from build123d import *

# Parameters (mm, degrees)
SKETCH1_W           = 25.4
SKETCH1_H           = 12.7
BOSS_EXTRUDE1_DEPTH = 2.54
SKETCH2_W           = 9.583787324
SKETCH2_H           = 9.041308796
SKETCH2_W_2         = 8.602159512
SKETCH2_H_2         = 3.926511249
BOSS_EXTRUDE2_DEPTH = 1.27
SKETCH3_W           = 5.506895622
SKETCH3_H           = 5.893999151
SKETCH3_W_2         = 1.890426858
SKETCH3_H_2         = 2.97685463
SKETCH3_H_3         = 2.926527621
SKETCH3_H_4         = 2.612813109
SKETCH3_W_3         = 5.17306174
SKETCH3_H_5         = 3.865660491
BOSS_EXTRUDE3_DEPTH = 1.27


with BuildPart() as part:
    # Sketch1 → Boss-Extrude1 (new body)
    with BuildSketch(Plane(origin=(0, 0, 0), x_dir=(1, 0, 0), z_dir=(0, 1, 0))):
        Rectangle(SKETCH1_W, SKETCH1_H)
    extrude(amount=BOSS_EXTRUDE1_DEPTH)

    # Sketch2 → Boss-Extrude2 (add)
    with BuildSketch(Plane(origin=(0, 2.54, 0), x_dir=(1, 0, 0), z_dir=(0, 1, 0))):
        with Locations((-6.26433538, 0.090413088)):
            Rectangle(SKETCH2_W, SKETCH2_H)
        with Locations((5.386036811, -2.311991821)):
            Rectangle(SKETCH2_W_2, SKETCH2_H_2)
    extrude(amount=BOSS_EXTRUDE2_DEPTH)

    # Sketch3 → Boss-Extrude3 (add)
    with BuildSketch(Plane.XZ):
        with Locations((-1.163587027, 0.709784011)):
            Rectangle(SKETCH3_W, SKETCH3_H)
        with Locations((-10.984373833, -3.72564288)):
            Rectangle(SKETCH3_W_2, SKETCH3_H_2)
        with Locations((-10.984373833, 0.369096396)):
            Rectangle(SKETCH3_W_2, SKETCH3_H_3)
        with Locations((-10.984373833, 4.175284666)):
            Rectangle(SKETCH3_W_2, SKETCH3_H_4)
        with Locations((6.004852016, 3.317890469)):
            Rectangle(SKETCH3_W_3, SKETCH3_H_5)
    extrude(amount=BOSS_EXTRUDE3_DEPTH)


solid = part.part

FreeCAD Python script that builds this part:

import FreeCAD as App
import Part
import Sketcher
Q = App.Units.Quantity

doc = App.newDocument("Part")
body = doc.addObject("PartDesign::Body", "Body")

sketch1 = body.newObject("Sketcher::SketchObject", "Sketch")
sketch1.AttachmentSupport = (doc.getObject("XZ_Plane"), [""])
sketch1.MapMode = "FlatFace"
sketch1.addGeometry(Part.LineSegment(App.Vector(-13, -6, 0), App.Vector(-13, 6, 0)), False)
sketch1.addGeometry(Part.LineSegment(App.Vector(-13, 6, 0), App.Vector(13, 6, 0)), False)
sketch1.addGeometry(Part.LineSegment(App.Vector(13, 6, 0), App.Vector(13, -6, 0)), False)
sketch1.addGeometry(Part.LineSegment(App.Vector(13, -6, 0), App.Vector(-13, -6, 0)), False)
sketch1.addConstraint(Sketcher.Constraint("Coincident", 0, 2, 1, 1))
sketch1.addConstraint(Sketcher.Constraint("Coincident", 1, 2, 2, 1))
sketch1.addConstraint(Sketcher.Constraint("Coincident", 2, 2, 3, 1))
sketch1.addConstraint(Sketcher.Constraint("Coincident", 3, 2, 0, 1))
sketch1.addConstraint(Sketcher.Constraint("Vertical", 0))
sketch1.addConstraint(Sketcher.Constraint("Horizontal", 1))
sketch1.addConstraint(Sketcher.Constraint("Vertical", 2))
sketch1.addConstraint(Sketcher.Constraint("Horizontal", 3))
sketch1.addConstraint(Sketcher.Constraint("Symmetric", 0, 2, 2, 2, -1, 1))
sketch1.addConstraint(Sketcher.Constraint("DistanceX", 1, 1, 1, 2, Q("1 in")))
sketch1.addConstraint(Sketcher.Constraint("DistanceY", 0, 1, 0, 2, Q("0.5 in")))
pad1 = body.newObject("PartDesign::Pad", "Pad")
pad1.Profile = sketch1
pad1.Length = Q("0.1 in")
pad1.Reversed = True

sketch2 = body.newObject("Sketcher::SketchObject", "Sketch001")
sketch2.AttachmentSupport = (doc.getObject("XZ_Plane"), [""])
sketch2.MapMode = "FlatFace"
sketch2.AttachmentOffset = App.Placement(App.Vector(0, 0, -0.1 * 25.4), App.Rotation())
sketch2.addGeometry(Part.LineSegment(App.Vector(-11.1, -4.6, 0), App.Vector(-11.1, 4.4, 0)), False)
sketch2.addGeometry(Part.LineSegment(App.Vector(-11.1, 4.4, 0), App.Vector(-1.5, 4.4, 0)), False)
sketch2.addGeometry(Part.LineSegment(App.Vector(-1.5, 4.4, 0), App.Vector(-1.5, -4.6, 0)), False)
sketch2.addGeometry(Part.LineSegment(App.Vector(-1.5, -4.6, 0), App.Vector(-11.1, -4.6, 0)), False)
sketch2.addGeometry(Part.LineSegment(App.Vector(1.1, 0.3, 0), App.Vector(1.1, 4.3, 0)), False)
sketch2.addGeometry(Part.LineSegment(App.Vector(1.1, 4.3, 0), App.Vector(9.7, 4.3, 0)), False)
sketch2.addGeometry(Part.LineSegment(App.Vector(9.7, 4.3, 0), App.Vector(9.7, 0.3, 0)), False)
sketch2.addGeometry(Part.LineSegment(App.Vector(9.7, 0.3, 0), App.Vector(1.1, 0.3, 0)), False)
sketch2.addConstraint(Sketcher.Constraint("Coincident", 0, 2, 1, 1))
sketch2.addConstraint(Sketcher.Constraint("Coincident", 1, 2, 2, 1))
sketch2.addConstraint(Sketcher.Constraint("Coincident", 2, 2, 3, 1))
sketch2.addConstraint(Sketcher.Constraint("Coincident", 3, 2, 0, 1))
sketch2.addConstraint(Sketcher.Constraint("Coincident", 4, 2, 5, 1))
sketch2.addConstraint(Sketcher.Constraint("Coincident", 5, 2, 6, 1))
sketch2.addConstraint(Sketcher.Constraint("Coincident", 6, 2, 7, 1))
sketch2.addConstraint(Sketcher.Constraint("Coincident", 7, 2, 4, 1))
sketch2.addConstraint(Sketcher.Constraint("Vertical", 0))
sketch2.addConstraint(Sketcher.Constraint("Horizontal", 1))
sketch2.addConstraint(Sketcher.Constraint("Vertical", 2))
sketch2.addConstraint(Sketcher.Constraint("Horizontal", 3))
sketch2.addConstraint(Sketcher.Constraint("Vertical", 4))
sketch2.addConstraint(Sketcher.Constraint("Horizontal", 5))
sketch2.addConstraint(Sketcher.Constraint("Vertical", 6))
sketch2.addConstraint(Sketcher.Constraint("Horizontal", 7))
sketch2.addConstraint(Sketcher.Constraint("DistanceX", 5, 1, 5, 2, Q("8.60216 mm")))
sketch2.addConstraint(Sketcher.Constraint("DistanceY", 0, 1, 0, 2, Q("9.041309 mm")))
sketch2.addConstraint(Sketcher.Constraint("DistanceY", 4, 1, 4, 2, Q("3.926511 mm")))
sketch2.addConstraint(Sketcher.Constraint("DistanceX", 1, 2, 4, 2, Q("2.557399 mm")))
sketch2.addConstraint(Sketcher.Constraint("DistanceX", 1, 1, 1, 2, Q("9.583787 mm")))
sketch2.addConstraint(Sketcher.Constraint("DistanceX", 0, 2, -1, 1, Q("11.056229 mm")))
sketch2.addConstraint(Sketcher.Constraint("DistanceY", -1, 1, 0, 2, Q("4.430241 mm")))
sketch2.addConstraint(Sketcher.Constraint("DistanceY", -1, 1, 4, 2, Q("4.275247 mm")))
pad2 = body.newObject("PartDesign::Pad", "Pad001")
pad2.Profile = sketch2
pad2.Length = Q("0.05 in")
pad2.Reversed = True

sketch3 = body.newObject("Sketcher::SketchObject", "Sketch002")
sketch3.AttachmentSupport = (doc.getObject("XZ_Plane"), [""])
sketch3.MapMode = "FlatFace"
sketch3.addGeometry(Part.LineSegment(App.Vector(-3.9, 3.7, 0), App.Vector(-3.9, -2.2, 0)), False)
sketch3.addGeometry(Part.LineSegment(App.Vector(-3.9, -2.2, 0), App.Vector(1.6, -2.2, 0)), False)
sketch3.addGeometry(Part.LineSegment(App.Vector(1.6, -2.2, 0), App.Vector(1.6, 3.7, 0)), False)
sketch3.addGeometry(Part.LineSegment(App.Vector(1.6, 3.7, 0), App.Vector(-3.9, 3.7, 0)), False)
sketch3.addGeometry(Part.LineSegment(App.Vector(-11.9, -2.2, 0), App.Vector(-11.9, -5.2, 0)), False)
sketch3.addGeometry(Part.LineSegment(App.Vector(-11.9, -5.2, 0), App.Vector(-10, -5.2, 0)), False)
sketch3.addGeometry(Part.LineSegment(App.Vector(-10, -5.2, 0), App.Vector(-10, -2.2, 0)), False)
sketch3.addGeometry(Part.LineSegment(App.Vector(-10, -2.2, 0), App.Vector(-11.9, -2.2, 0)), False)
sketch3.addGeometry(Part.LineSegment(App.Vector(-11.9, 1.8, 0), App.Vector(-11.9, -1.1, 0)), False)
sketch3.addGeometry(Part.LineSegment(App.Vector(-11.9, -1.1, 0), App.Vector(-10, -1.1, 0)), False)
sketch3.addGeometry(Part.LineSegment(App.Vector(-10, -1.1, 0), App.Vector(-10, 1.8, 0)), False)
sketch3.addGeometry(Part.LineSegment(App.Vector(-10, 1.8, 0), App.Vector(-11.9, 1.8, 0)), False)
sketch3.addGeometry(Part.LineSegment(App.Vector(-11.9, 5.5, 0), App.Vector(-11.9, 2.9, 0)), False)
sketch3.addGeometry(Part.LineSegment(App.Vector(-11.9, 2.9, 0), App.Vector(-10, 2.9, 0)), False)
sketch3.addGeometry(Part.LineSegment(App.Vector(-10, 2.9, 0), App.Vector(-10, 5.5, 0)), False)
sketch3.addGeometry(Part.LineSegment(App.Vector(-10, 5.5, 0), App.Vector(-11.9, 5.5, 0)), False)
sketch3.addGeometry(Part.LineSegment(App.Vector(3.4, 5.3, 0), App.Vector(3.4, 1.4, 0)), False)
sketch3.addGeometry(Part.LineSegment(App.Vector(3.4, 1.4, 0), App.Vector(8.6, 1.4, 0)), False)
sketch3.addGeometry(Part.LineSegment(App.Vector(8.6, 1.4, 0), App.Vector(8.6, 5.3, 0)), False)
sketch3.addGeometry(Part.LineSegment(App.Vector(8.6, 5.3, 0), App.Vector(3.4, 5.3, 0)), False)
sketch3.addConstraint(Sketcher.Constraint("Coincident", 0, 2, 1, 1))
sketch3.addConstraint(Sketcher.Constraint("Coincident", 1, 2, 2, 1))
sketch3.addConstraint(Sketcher.Constraint("Coincident", 2, 2, 3, 1))
sketch3.addConstraint(Sketcher.Constraint("Coincident", 3, 2, 0, 1))
sketch3.addConstraint(Sketcher.Constraint("Coincident", 4, 2, 5, 1))
sketch3.addConstraint(Sketcher.Constraint("Coincident", 5, 2, 6, 1))
sketch3.addConstraint(Sketcher.Constraint("Coincident", 6, 2, 7, 1))
sketch3.addConstraint(Sketcher.Constraint("Coincident", 7, 2, 4, 1))
sketch3.addConstraint(Sketcher.Constraint("Coincident", 8, 2, 9, 1))
sketch3.addConstraint(Sketcher.Constraint("Coincident", 9, 2, 10, 1))
sketch3.addConstraint(Sketcher.Constraint("Coincident", 10, 2, 11, 1))
sketch3.addConstraint(Sketcher.Constraint("Coincident", 11, 2, 8, 1))
sketch3.addConstraint(Sketcher.Constraint("Coincident", 12, 2, 13, 1))
sketch3.addConstraint(Sketcher.Constraint("Coincident", 13, 2, 14, 1))
sketch3.addConstraint(Sketcher.Constraint("Coincident", 14, 2, 15, 1))
sketch3.addConstraint(Sketcher.Constraint("Coincident", 15, 2, 12, 1))
sketch3.addConstraint(Sketcher.Constraint("Coincident", 16, 2, 17, 1))
sketch3.addConstraint(Sketcher.Constraint("Coincident", 17, 2, 18, 1))
sketch3.addConstraint(Sketcher.Constraint("Coincident", 18, 2, 19, 1))
sketch3.addConstraint(Sketcher.Constraint("Coincident", 19, 2, 16, 1))
sketch3.addConstraint(Sketcher.Constraint("Vertical", 0))
sketch3.addConstraint(Sketcher.Constraint("Horizontal", 1))
sketch3.addConstraint(Sketcher.Constraint("Vertical", 2))
sketch3.addConstraint(Sketcher.Constraint("Horizontal", 3))
sketch3.addConstraint(Sketcher.Constraint("Vertical", 4))
sketch3.addConstraint(Sketcher.Constraint("Horizontal", 5))
sketch3.addConstraint(Sketcher.Constraint("Vertical", 6))
sketch3.addConstraint(Sketcher.Constraint("Horizontal", 7))
sketch3.addConstraint(Sketcher.Constraint("Vertical", 8))
sketch3.addConstraint(Sketcher.Constraint("Horizontal", 9))
sketch3.addConstraint(Sketcher.Constraint("Vertical", 10))
sketch3.addConstraint(Sketcher.Constraint("Horizontal", 11))
sketch3.addConstraint(Sketcher.Constraint("Vertical", 12))
sketch3.addConstraint(Sketcher.Constraint("Horizontal", 13))
sketch3.addConstraint(Sketcher.Constraint("Vertical", 14))
sketch3.addConstraint(Sketcher.Constraint("Horizontal", 15))
sketch3.addConstraint(Sketcher.Constraint("Vertical", 16))
sketch3.addConstraint(Sketcher.Constraint("Horizontal", 17))
sketch3.addConstraint(Sketcher.Constraint("Vertical", 18))
sketch3.addConstraint(Sketcher.Constraint("Horizontal", 19))
sketch3.addConstraint(Sketcher.Constraint("Horizontal", 1, 2, 6, 2))
sketch3.addConstraint(Sketcher.Constraint("Vertical", 7, 2, 8, 2))
sketch3.addConstraint(Sketcher.Constraint("Vertical", 6, 2, 9, 2))
sketch3.addConstraint(Sketcher.Constraint("Vertical", 11, 2, 12, 2))
sketch3.addConstraint(Sketcher.Constraint("Vertical", 10, 2, 13, 2))
sketch3.addConstraint(Sketcher.Constraint("DistanceY", 0, 2, 0, 1, Q("5.893999 mm")))
sketch3.addConstraint(Sketcher.Constraint("DistanceX", 17, 1, 17, 2, Q("5.173062 mm")))
sketch3.addConstraint(Sketcher.Constraint("DistanceY", 16, 2, 16, 1, Q("3.86566 mm")))
sketch3.addConstraint(Sketcher.Constraint("DistanceY", 16, 2, 10, 2, Q("0.4473 mm")))
sketch3.addConstraint(Sketcher.Constraint("DistanceX", 1, 1, 1, 2, Q("5.506896 mm")))
sketch3.addConstraint(Sketcher.Constraint("DistanceX", 5, 1, 5, 2, Q("1.890427 mm")))
sketch3.addConstraint(Sketcher.Constraint("DistanceY", 4, 2, 4, 1, Q("2.976855 mm")))
sketch3.addConstraint(Sketcher.Constraint("DistanceY", 8, 2, 8, 1, Q("2.926528 mm")))
sketch3.addConstraint(Sketcher.Constraint("DistanceY", 12, 2, 12, 1, Q("2.612813 mm")))
sketch3.addConstraint(Sketcher.Constraint("DistanceX", -1, 1, 1, 2, Q("1.589861 mm")))
sketch3.addConstraint(Sketcher.Constraint("DistanceY", 4, 2, -1, 1, Q("5.21407 mm")))
sketch3.addConstraint(Sketcher.Constraint("DistanceX", 5, 2, -1, 1, Q("10.03916 mm")))
sketch3.addConstraint(Sketcher.Constraint("DistanceY", -1, 1, 10, 2, Q("1.83236 mm")))
sketch3.addConstraint(Sketcher.Constraint("DistanceY", -1, 1, 12, 2, Q("2.868878 mm")))
sketch3.addConstraint(Sketcher.Constraint("DistanceX", -1, 1, 16, 2, Q("3.418321 mm")))
pad3 = body.newObject("PartDesign::Pad", "Pad002")
pad3.Profile = sketch3
pad3.Length = Q("0.05 in")

doc.recompute()
